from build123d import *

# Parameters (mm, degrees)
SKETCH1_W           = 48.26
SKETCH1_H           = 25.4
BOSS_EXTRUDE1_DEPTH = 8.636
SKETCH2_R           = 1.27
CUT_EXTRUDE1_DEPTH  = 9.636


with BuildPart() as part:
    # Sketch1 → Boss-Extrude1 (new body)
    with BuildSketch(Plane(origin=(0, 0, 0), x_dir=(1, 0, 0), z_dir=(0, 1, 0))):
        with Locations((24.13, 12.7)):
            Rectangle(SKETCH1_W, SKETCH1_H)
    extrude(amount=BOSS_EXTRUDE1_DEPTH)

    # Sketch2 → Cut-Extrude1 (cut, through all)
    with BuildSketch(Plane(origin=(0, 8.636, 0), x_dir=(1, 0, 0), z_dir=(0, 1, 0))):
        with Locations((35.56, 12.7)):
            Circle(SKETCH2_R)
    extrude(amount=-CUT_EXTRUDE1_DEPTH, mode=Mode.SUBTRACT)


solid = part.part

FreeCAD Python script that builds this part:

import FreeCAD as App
import Part
import Sketcher
Q = App.Units.Quantity


def add_polygon(sketch, points):
    """Adds a closed chain of lines whose ends are joined by coincident constraints."""
    first, n = sketch.GeometryCount, len(points)
    for a, b in zip(points, points[1:] + points[:1]):
        sketch.addGeometry(Part.LineSegment(App.Vector(*a, 0), App.Vector(*b, 0)), False)
    for i in range(n):
        sketch.addConstraint(Sketcher.Constraint("Coincident", first + i, 2, first + (i + 1) % n, 1))

doc = App.newDocument("Part")
params = doc.addObject("Spreadsheet::Sheet", "Params")
for row, (alias, value) in enumerate([
    ("sketch1_height", "1 in"),
    ("sketch1_width", "1.9 in"),
    ("pad1_length", "0.34 in"),
    ("sketch2_diameter", "0.1 in"),
], start=1):
    params.set(f"A{row}", alias)
    params.set(f"B{row}", "=" + value)
    params.setAlias(f"B{row}", alias)

body = doc.addObject("PartDesign::Body", "Body")

# Sketch on XZ plane
sketch1 = body.newObject("Sketcher::SketchObject", "Sketch")
sketch1.AttachmentSupport = (doc.getObject("XZ_Plane"), [""])
sketch1.MapMode = "FlatFace"
add_polygon(sketch1, [(0, -25), (0, 0), (48, 0), (48, -25)])  # lines 0-3
sketch1.addConstraint([
    Sketcher.Constraint("Vertical", 0),
    Sketcher.Constraint("Horizontal", 1),
    Sketcher.Constraint("Vertical", 2),
    Sketcher.Constraint("Horizontal", 3),
    Sketcher.Constraint("Coincident", 0, 2, -1, 1),
    Sketcher.Constraint("DistanceY", 0, 1, 0, 2, Q("1 in")),
    Sketcher.Constraint("DistanceX", 1, 1, 1, 2, Q("1.9 in")),
])
sketch1.setExpression("Constraints[9]", "Params.sketch1_height")
sketch1.setExpression("Constraints[10]", "Params.sketch1_width")
pad1 = body.newObject("PartDesign::Pad", "Pad")
pad1.Profile = sketch1
pad1.setExpression("Length", "Params.pad1_length")
pad1.Reversed = True

# Sketch on XZ plane
sketch2 = body.newObject("Sketcher::SketchObject", "Sketch001")
sketch2.AttachmentSupport = (doc.getObject("XZ_Plane"), [""])
sketch2.MapMode = "FlatFace"
sketch2.AttachmentOffset = App.Placement(App.Vector(0, 0, -0.34 * 25.4), App.Rotation())
sketch2.addGeometry(Part.Circle(App.Vector(35.6, -12.7, 0), App.Vector(0, 0, 1), 1.3), False)
sketch2.addConstraint([
    Sketcher.Constraint("Diameter", 0, Q("0.1 in")),
    Sketcher.Constraint("DistanceX", -1, 1, 0, 3, Q("1.4 in")),
    Sketcher.Constraint("DistanceY", 0, 3, -1, 1, Q("0.5 in")),
])
sketch2.setExpression("Constraints[0]", "Params.sketch2_diameter")
pocket1 = body.newObject("PartDesign::Pocket", "Pocket")
pocket1.Profile = sketch2
pocket1.Type = "ThroughAll"
pocket1.Reversed = True

doc.recompute()
